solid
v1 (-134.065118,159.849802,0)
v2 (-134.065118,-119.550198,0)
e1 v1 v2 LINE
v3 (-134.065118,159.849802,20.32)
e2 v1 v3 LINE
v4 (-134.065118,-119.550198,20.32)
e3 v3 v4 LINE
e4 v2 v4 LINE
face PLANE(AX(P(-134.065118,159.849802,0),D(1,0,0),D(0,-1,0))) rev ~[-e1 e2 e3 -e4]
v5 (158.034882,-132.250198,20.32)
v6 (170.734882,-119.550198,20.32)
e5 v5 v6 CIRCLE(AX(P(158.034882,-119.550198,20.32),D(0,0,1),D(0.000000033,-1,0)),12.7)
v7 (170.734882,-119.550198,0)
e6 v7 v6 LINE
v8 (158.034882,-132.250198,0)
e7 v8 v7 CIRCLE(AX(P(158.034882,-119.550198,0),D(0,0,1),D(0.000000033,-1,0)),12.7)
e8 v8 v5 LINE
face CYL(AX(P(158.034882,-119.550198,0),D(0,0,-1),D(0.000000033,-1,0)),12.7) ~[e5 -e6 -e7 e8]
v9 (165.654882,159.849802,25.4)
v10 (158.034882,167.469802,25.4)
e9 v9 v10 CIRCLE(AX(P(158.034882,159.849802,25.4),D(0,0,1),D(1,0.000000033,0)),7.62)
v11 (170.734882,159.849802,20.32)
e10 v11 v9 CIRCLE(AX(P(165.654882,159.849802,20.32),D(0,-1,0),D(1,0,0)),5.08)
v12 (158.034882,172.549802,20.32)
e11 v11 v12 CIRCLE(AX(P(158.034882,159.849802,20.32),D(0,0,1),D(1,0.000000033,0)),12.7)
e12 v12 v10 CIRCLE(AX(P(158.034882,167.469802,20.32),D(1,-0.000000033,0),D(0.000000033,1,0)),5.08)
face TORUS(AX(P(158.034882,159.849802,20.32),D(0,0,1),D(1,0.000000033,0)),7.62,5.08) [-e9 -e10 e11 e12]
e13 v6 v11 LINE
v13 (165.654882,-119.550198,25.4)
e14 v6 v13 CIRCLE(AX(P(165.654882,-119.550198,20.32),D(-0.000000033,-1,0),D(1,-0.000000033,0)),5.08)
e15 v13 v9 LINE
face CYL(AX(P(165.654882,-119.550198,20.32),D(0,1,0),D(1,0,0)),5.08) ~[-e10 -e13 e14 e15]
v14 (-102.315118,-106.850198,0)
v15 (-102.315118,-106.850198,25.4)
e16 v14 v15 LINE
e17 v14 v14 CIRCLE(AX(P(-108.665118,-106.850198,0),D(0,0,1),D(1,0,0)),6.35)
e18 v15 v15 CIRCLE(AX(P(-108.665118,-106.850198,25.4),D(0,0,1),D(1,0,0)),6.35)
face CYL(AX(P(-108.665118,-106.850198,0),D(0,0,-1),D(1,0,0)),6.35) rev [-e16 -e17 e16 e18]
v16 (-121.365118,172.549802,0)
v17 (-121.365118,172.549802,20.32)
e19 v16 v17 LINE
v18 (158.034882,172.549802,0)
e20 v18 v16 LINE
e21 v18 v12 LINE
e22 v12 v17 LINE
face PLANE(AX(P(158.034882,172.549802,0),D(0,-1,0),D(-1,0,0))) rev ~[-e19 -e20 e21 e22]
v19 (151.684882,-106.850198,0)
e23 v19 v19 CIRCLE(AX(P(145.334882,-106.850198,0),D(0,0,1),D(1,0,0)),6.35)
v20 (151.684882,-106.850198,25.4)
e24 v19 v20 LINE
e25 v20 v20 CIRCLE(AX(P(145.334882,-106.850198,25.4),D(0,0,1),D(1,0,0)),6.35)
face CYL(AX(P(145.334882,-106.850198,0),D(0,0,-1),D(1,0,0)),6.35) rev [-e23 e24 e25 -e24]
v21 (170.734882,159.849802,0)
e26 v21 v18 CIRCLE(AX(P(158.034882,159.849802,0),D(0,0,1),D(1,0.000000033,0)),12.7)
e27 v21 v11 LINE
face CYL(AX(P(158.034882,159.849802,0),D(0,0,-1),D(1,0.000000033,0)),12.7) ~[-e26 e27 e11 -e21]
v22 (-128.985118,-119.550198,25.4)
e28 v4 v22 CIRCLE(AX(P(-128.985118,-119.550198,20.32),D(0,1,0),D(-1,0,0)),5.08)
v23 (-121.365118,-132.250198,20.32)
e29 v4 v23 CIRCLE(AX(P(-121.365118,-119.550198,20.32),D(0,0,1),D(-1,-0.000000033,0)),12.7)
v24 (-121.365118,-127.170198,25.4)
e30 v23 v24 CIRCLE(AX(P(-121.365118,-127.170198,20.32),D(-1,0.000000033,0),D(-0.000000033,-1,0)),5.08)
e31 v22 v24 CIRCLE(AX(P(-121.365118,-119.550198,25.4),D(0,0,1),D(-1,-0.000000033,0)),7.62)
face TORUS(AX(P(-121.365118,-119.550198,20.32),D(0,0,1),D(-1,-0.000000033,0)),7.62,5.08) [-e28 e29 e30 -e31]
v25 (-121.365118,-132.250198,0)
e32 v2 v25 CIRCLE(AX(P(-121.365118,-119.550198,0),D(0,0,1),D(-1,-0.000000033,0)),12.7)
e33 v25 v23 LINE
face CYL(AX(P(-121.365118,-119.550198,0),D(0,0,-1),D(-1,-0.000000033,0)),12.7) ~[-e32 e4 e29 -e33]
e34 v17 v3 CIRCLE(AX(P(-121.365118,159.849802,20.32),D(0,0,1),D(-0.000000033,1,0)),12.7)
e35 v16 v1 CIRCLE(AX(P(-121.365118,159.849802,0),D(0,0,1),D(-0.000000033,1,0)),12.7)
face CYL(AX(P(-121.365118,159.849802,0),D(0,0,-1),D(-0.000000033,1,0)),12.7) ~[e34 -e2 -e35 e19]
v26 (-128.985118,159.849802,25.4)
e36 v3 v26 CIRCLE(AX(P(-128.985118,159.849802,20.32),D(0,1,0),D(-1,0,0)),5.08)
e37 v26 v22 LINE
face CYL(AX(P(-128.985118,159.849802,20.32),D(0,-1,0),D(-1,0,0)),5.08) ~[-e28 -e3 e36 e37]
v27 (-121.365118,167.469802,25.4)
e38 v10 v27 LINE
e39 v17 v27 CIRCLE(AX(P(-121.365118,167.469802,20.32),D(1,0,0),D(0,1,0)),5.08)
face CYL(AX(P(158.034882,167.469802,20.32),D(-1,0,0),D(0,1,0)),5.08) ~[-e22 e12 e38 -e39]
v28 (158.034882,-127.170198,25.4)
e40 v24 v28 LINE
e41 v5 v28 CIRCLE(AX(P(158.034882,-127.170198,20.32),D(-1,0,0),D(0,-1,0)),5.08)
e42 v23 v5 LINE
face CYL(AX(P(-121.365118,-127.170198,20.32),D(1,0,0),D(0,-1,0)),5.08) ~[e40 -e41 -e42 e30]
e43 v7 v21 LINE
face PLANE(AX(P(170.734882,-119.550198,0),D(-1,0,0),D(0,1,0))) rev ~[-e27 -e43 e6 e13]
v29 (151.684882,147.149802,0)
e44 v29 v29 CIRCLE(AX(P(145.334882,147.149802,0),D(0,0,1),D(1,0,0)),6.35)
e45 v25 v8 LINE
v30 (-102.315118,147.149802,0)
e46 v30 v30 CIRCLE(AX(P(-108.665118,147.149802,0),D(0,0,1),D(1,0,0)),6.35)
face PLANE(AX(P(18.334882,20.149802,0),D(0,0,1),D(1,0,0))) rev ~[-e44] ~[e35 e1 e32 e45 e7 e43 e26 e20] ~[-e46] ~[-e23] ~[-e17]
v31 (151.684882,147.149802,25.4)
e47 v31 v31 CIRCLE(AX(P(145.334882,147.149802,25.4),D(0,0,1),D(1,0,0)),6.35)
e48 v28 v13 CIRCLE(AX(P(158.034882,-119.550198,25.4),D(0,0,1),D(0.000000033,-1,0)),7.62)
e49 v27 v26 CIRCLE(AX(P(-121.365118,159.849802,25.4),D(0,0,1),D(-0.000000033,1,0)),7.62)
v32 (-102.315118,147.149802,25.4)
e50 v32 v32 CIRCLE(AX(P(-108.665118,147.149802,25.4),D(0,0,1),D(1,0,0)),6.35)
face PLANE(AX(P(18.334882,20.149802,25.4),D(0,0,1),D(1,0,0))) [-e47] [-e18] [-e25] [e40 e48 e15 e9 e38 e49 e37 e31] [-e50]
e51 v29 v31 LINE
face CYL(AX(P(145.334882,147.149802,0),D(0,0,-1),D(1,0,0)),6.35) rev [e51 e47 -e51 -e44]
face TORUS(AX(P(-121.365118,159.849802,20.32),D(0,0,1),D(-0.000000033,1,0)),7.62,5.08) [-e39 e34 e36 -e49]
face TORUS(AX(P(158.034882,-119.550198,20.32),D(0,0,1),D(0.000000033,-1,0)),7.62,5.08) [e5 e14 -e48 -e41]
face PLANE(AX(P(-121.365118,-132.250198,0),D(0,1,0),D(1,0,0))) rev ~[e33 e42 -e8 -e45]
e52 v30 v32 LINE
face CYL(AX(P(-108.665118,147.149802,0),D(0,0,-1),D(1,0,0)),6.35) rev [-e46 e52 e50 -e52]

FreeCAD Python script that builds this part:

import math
import FreeCAD as App
import Part
import Sketcher
from FreeCAD import Vector
Q = App.Units.Quantity


def edges_at(feature, points):
    """Names of the edges that pass closest to the given points."""
    edges = feature.Shape.Edges
    near = lambda p: min(range(len(edges)), key=lambda i: edges[i].distToShape(Part.Vertex(*p))[0])
    return sorted({f"Edge{near(p) + 1}" for p in points})

doc = App.newDocument("Part")
body = doc.addObject("PartDesign::Body", "Body")

# Sketch on XY plane
sketch1 = doc.addObject("Sketcher::SketchObject", "Sketch")
body.addObject(sketch1)
sketch1.AttachmentSupport = (doc.XY_Plane, [""])
sketch1.MapMode = "FlatFace"
sketch1.addGeometry([
    Part.LineSegment(Vector(158, 173, 0), Vector(-121, 173, 0)),  # 0
    Part.ArcOfCircle(Part.Circle(Vector(-121, 160, 0), Vector(0, 0, 1), 13), math.radians(90), math.radians(180)),  # 1
    Part.LineSegment(Vector(-134, 160, 0), Vector(-134, -120, 0)),  # 2
    Part.ArcOfCircle(Part.Circle(Vector(-121, -120, 0), Vector(0, 0, 1), 13), math.radians(-180), math.radians(-90)),  # 3
    Part.LineSegment(Vector(-121, -132, 0), Vector(158, -132, 0)),  # 4
    Part.ArcOfCircle(Part.Circle(Vector(158, -120, 0), Vector(0, 0, 1), 13), math.radians(-90), math.radians(0)),  # 5
    Part.LineSegment(Vector(171, -120, 0), Vector(171, 160, 0)),  # 6
    Part.ArcOfCircle(Part.Circle(Vector(158, 160, 0), Vector(0, 0, 1), 13), math.radians(0), math.radians(90)),  # 7
    Part.Circle(Vector(-109, -107, 0), Vector(0, 0, 1), 6),  # 8
    Part.Circle(Vector(145, -107, 0), Vector(0, 0, 1), 6),  # 9
    Part.Circle(Vector(-109, 147, 0), Vector(0, 0, 1), 6),  # 10
    Part.Circle(Vector(145, 147, 0), Vector(0, 0, 1), 6),  # 11
], False)
sketch1.addConstraint([
    Sketcher.Constraint("Tangent", 0, 2, 1, 1),
    Sketcher.Constraint("Tangent", 1, 2, 2, 1),
    Sketcher.Constraint("Tangent", 2, 2, 3, 1),
    Sketcher.Constraint("Tangent", 3, 2, 4, 1),
    Sketcher.Constraint("Tangent", 4, 2, 5, 1),
    Sketcher.Constraint("Tangent", 5, 2, 6, 1),
    Sketcher.Constraint("Tangent", 6, 2, 7, 1),
    Sketcher.Constraint("Tangent", 7, 2, 0, 1),
    Sketcher.Constraint("Horizontal", 0),
    Sketcher.Constraint("Vertical", 2),
    Sketcher.Constraint("Horizontal", 4),
    Sketcher.Constraint("Vertical", 6),
    Sketcher.Constraint("Equal", 1, 3),
    Sketcher.Constraint("Equal", 3, 5),
    Sketcher.Constraint("Equal", 5, 7),
    Sketcher.Constraint("Equal", 8, 9),
    Sketcher.Constraint("Equal", 9, 10),
    Sketcher.Constraint("Equal", 10, 11),
    Sketcher.Constraint("Horizontal", 8, 3, 9, 3),
    Sketcher.Constraint("Horizontal", 10, 3, 11, 3),
    Sketcher.Constraint("Vertical", 8, 3, 10, 3),
    Sketcher.Constraint("Vertical", 9, 3, 11, 3),
    Sketcher.Constraint("Equal", 4, 2),
    Sketcher.Constraint("Diameter", 8, Q("0.5 in")),
    Sketcher.Constraint("Radius", 1, Q("0.5 in")),
    Sketcher.Constraint("DistanceX", 0, 2, 0, 1, Q("11 in")),
    Sketcher.Constraint("DistanceX", 8, 3, 9, 3, Q("10 in")),
    Sketcher.Constraint("DistanceY", 8, 3, 10, 3, Q("10 in")),
    Sketcher.Constraint("DistanceY", 10, 3, 0, 2, Q("1 in")),
    Sketcher.Constraint("DistanceX", 1, 2, 10, 3, Q("1 in")),
    Sketcher.Constraint("DistanceY", -1, 1, 1, 3, Q("159.849802 mm")),
    Sketcher.Constraint("DistanceX", -1, 1, 5, 3, Q("158.034882 mm")),
])
pad1 = doc.addObject("PartDesign::Pad", "Pad")
body.addObject(pad1)
pad1.Profile = sketch1
pad1.Length = Q("1 in")
doc.recompute()

fillet = doc.addObject("PartDesign::Fillet", "Fillet")
body.addObject(fillet)
fillet.Base = (pad1, edges_at(pad1, [
    (-134.065, 20.15, 25.4),
    (-130.345, -128.53, 25.4),
    (18.335, -132.25, 25.4),
    (167.015, -128.53, 25.4),
    (170.735, 20.15, 25.4),
    (167.015, 168.83, 25.4),
    (18.335, 172.55, 25.4),
    (-130.345, 168.83, 25.4),
]))
fillet.Radius = Q("0.2 in")

doc.recompute()
